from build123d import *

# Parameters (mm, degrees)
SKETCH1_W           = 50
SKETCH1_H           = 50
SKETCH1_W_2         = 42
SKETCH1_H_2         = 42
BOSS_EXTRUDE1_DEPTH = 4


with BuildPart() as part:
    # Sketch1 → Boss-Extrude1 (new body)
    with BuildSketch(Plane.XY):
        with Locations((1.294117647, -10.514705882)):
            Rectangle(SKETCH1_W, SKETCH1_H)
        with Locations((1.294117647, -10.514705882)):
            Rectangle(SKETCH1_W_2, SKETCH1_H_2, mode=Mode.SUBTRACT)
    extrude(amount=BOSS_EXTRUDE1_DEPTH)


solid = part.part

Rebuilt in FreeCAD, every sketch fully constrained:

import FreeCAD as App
import Part
import Sketcher

V = App.Vector


def add_polygon(sketch, points):
    """Adds a closed chain of lines whose ends are joined by coincident constraints."""
    first, n = sketch.GeometryCount, len(points)
    for a, b in zip(points, points[1:] + points[:1]):
        sketch.addGeometry(Part.LineSegment(App.Vector(*a, 0), App.Vector(*b, 0)), False)
    for i in range(n):
        sketch.addConstraint(Sketcher.Constraint("Coincident", first + i, 2, first + (i + 1) % n, 1))

doc = App.newDocument("Part")
params = doc.addObject("Spreadsheet::Sheet", "Params")
for row, (alias, value) in enumerate([
    ("sketch1_width", "50 mm"),
    ("sketch1_width2", "42 mm"),
    ("pad1_length", "4 mm"),
], start=1):
    params.set(f"A{row}", alias)
    params.set(f"B{row}", "=" + value)
    params.setAlias(f"B{row}", alias)

body = doc.addObject("PartDesign::Body", "Body")

# Sketch on XY plane
sketch1 = body.newObject("Sketcher::SketchObject", "Sketch")
sketch1.AttachmentSupport = (doc.getObject("XY_Plane"), [""])
sketch1.MapMode = "FlatFace"
add_polygon(sketch1, [(-23.705882, 14.485294), (-23.705882, -35.514706), (26.294118, -35.514706), (26.294118, 14.485294)])  # lines 0-3
add_polygon(sketch1, [(22.294118, -31.514706), (-19.705882, -31.514706), (-19.705882, 10.485294), (22.294118, 10.485294)])  # lines 4-7
sketch1.addConstraint([
    Sketcher.Constraint("Vertical", 0),
    Sketcher.Constraint("Horizontal", 1),
    Sketcher.Constraint("Vertical", 2),
    Sketcher.Constraint("Horizontal", 3),
    Sketcher.Constraint("Horizontal", 4),
    Sketcher.Constraint("Vertical", 5),
    Sketcher.Constraint("Horizontal", 6),
    Sketcher.Constraint("Vertical", 7),
    Sketcher.Constraint("Equal", 3, 0),
    Sketcher.Constraint("Equal", 6, 5),
    Sketcher.Constraint("DistanceX", 1, 1, 1, 2, 50.0),
    Sketcher.Constraint("DistanceX", 4, 2, 4, 1, 42.0),
    Sketcher.Constraint("DistanceX", 0, 2, 4, 2, 4.0),
    Sketcher.Constraint("DistanceY", 0, 2, 4, 2, 4.0),
    Sketcher.Constraint("DistanceX", 0, 2, -1, 1, 23.705882),
    Sketcher.Constraint("DistanceY", 0, 2, -1, 1, 35.514706),
])
sketch1.setExpression("Constraints[18]", "Params.sketch1_width")
sketch1.setExpression("Constraints[19]", "Params.sketch1_width2")
pad1 = body.newObject("PartDesign::Pad", "Pad")
pad1.Profile = sketch1
pad1.setExpression("Length", "Params.pad1_length")

doc.recompute()
